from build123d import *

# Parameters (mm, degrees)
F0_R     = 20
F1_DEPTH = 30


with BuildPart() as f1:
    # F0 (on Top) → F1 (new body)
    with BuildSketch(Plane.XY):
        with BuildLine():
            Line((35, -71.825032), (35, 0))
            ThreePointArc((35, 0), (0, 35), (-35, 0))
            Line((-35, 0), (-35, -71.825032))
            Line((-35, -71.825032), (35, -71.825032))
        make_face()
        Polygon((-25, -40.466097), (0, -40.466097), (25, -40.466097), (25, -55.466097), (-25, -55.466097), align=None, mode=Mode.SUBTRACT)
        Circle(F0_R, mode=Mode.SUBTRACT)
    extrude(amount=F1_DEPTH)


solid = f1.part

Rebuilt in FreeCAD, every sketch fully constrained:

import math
import FreeCAD as App
import Part
import Sketcher
Q = App.Units.Quantity


def add_polygon(sketch, points):
    """Adds a closed chain of lines whose ends are joined by coincident constraints."""
    first, n = sketch.GeometryCount, len(points)
    for a, b in zip(points, points[1:] + points[:1]):
        sketch.addGeometry(Part.LineSegment(App.Vector(*a, 0), App.Vector(*b, 0)), False)
    for i in range(n):
        sketch.addConstraint(Sketcher.Constraint("Coincident", first + i, 2, first + (i + 1) % n, 1))

doc = App.newDocument("Part")
body = doc.addObject("PartDesign::Body", "Body")

# Sketch on XY plane
sketch1 = doc.addObject("Sketcher::SketchObject", "Sketch")
body.addObject(sketch1)
sketch1.AttachmentSupport = (doc.XY_Plane, [""])
sketch1.MapMode = "FlatFace"
sketch1.addGeometry(Part.LineSegment(App.Vector(35, -72, 0), App.Vector(35, 0, 0)), False)  # 0
sketch1.addGeometry(Part.ArcOfCircle(Part.Circle(App.Vector(0, 0, 0), App.Vector(0, 0, 1), 35), math.radians(0), math.radians(180)), False)  # 1
sketch1.addGeometry(Part.LineSegment(App.Vector(-35, 0, 0), App.Vector(-35, -72, 0)), False)  # 2
sketch1.addGeometry(Part.LineSegment(App.Vector(-35, -72, 0), App.Vector(35, -72, 0)), False)  # 3
add_polygon(sketch1, [(-25, -55), (-25, -40), (25, -40), (25, -55)])  # lines 4-7
sketch1.addGeometry(Part.Circle(App.Vector(0, 0, 0), App.Vector(0, 0, 1), 20), False)  # 8
sketch1.addConstraint([
    Sketcher.Constraint("Tangent", 0, 2, 1, 1),
    Sketcher.Constraint("Tangent", 1, 2, 2, 1),
    Sketcher.Constraint("Coincident", 2, 2, 3, 1),
    Sketcher.Constraint("Coincident", 3, 2, 0, 1),
    Sketcher.Constraint("Vertical", 0),
    Sketcher.Constraint("Vertical", 2),
    Sketcher.Constraint("Horizontal", 3),
    Sketcher.Constraint("Vertical", 4),
    Sketcher.Constraint("Horizontal", 5),
    Sketcher.Constraint("Vertical", 6),
    Sketcher.Constraint("Horizontal", 7),
    Sketcher.Constraint("Coincident", 1, 3, -1, 1),
    Sketcher.Constraint("Coincident", 8, 3, -1, 1),
    Sketcher.Constraint("Diameter", 8, Q("40 mm")),
    Sketcher.Constraint("Radius", 1, Q("35 mm")),
    Sketcher.Constraint("DistanceX", 5, 1, 5, 2, Q("50 mm")),
    Sketcher.Constraint("DistanceY", 4, 1, 4, 2, Q("15 mm")),
    Sketcher.Constraint("DistanceX", 4, 2, -1, 1, Q("25 mm")),
    Sketcher.Constraint("DistanceY", 0, 1, 0, 2, Q("71.825032 mm")),
    Sketcher.Constraint("DistanceY", 4, 2, -1, 1, Q("40.466097 mm")),
])
pad1 = doc.addObject("PartDesign::Pad", "Pad")
body.addObject(pad1)
pad1.Profile = sketch1
pad1.Length = 30

doc.recompute()
